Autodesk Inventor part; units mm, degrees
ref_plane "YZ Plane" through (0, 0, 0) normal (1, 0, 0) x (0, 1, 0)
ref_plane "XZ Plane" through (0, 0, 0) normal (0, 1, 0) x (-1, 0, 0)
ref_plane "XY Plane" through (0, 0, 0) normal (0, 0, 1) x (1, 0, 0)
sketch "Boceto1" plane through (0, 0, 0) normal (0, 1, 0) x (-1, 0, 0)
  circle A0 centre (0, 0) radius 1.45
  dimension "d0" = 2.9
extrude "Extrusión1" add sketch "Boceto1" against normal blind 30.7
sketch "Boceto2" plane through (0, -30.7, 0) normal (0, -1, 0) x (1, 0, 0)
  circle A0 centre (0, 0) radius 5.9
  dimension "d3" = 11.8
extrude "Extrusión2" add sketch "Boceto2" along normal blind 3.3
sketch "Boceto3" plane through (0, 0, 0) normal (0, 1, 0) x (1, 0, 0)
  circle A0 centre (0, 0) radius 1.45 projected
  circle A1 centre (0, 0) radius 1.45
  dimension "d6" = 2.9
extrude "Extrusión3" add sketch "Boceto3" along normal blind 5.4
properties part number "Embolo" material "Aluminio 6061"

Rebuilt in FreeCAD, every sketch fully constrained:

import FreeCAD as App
import Part
import Sketcher
from FreeCAD import Vector

doc = App.newDocument("Part")
body = doc.addObject("PartDesign::Body", "Body")

# Sketch on XZ plane
sketch1 = body.newObject("Sketcher::SketchObject", "Sketch")
sketch1.AttachmentSupport = (doc.getObject("XZ_Plane"), [""])
sketch1.MapMode = "FlatFace"
sketch1.addGeometry(Part.Circle(Vector(0, 0, 0), Vector(0, 0, 1), 1.45), False)
sketch1.addConstraint(Sketcher.Constraint("Coincident", 0, 3, -1, 1))
sketch1.addConstraint(Sketcher.Constraint("Diameter", 0, 2.9))
pad1 = body.newObject("PartDesign::Pad", "Pad")
pad1.Profile = sketch1
pad1.Length = 30.7

# Sketch on XZ plane
sketch2 = body.newObject("Sketcher::SketchObject", "Sketch001")
sketch2.AttachmentSupport = (doc.getObject("XZ_Plane"), [""])
sketch2.MapMode = "FlatFace"
sketch2.AttachmentOffset = App.Placement(Vector(0, 0, 30.7), App.Rotation())
sketch2.addGeometry(Part.Circle(Vector(0, 0, 0), Vector(0, 0, 1), 5.9), False)
sketch2.addConstraint(Sketcher.Constraint("Coincident", 0, 3, -1, 1))
sketch2.addConstraint(Sketcher.Constraint("Diameter", 0, 11.8))
pad2 = body.newObject("PartDesign::Pad", "Pad001")
pad2.Profile = sketch2
pad2.Length = 3.3

# Sketch on XZ plane
sketch3 = body.newObject("Sketcher::SketchObject", "Sketch002")
sketch3.AttachmentSupport = (doc.getObject("XZ_Plane"), [""])
sketch3.MapMode = "FlatFace"
sketch3.addGeometry(Part.Circle(Vector(0, 0, 0), Vector(0, 0, 1), 1.45), False)
sketch3.addConstraint(Sketcher.Constraint("Coincident", 0, 3, -1, 1))
sketch3.addConstraint(Sketcher.Constraint("Diameter", 0, 2.9))
pad3 = body.newObject("PartDesign::Pad", "Pad002")
pad3.Profile = sketch3
pad3.Length = 5.4
pad3.Reversed = True

doc.recompute()
